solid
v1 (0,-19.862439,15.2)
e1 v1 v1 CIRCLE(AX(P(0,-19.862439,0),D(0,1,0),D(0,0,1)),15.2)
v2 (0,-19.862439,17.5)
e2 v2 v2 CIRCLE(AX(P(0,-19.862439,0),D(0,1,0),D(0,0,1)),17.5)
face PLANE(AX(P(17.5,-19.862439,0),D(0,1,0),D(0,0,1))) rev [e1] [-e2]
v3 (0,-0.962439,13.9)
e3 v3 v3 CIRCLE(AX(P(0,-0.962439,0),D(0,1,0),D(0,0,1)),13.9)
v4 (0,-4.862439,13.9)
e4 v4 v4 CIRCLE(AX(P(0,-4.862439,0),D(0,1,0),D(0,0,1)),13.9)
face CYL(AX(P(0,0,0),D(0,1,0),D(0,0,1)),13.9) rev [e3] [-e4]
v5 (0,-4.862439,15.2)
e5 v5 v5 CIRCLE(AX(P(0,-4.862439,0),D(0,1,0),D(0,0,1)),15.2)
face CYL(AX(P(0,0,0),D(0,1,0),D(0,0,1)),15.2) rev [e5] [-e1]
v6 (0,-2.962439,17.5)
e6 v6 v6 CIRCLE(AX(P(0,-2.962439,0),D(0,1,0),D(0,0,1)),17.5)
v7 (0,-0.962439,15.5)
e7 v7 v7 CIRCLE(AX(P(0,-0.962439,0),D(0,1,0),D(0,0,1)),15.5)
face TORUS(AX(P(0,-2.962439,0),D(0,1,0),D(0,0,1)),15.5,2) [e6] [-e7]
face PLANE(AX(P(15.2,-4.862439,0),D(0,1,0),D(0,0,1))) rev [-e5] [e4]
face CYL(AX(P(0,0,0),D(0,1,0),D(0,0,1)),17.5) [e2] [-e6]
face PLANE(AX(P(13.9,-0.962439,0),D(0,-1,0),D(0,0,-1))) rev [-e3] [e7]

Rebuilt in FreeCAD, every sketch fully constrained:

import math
import FreeCAD as App
import Part
import Sketcher

doc = App.newDocument("Part")
params = doc.addObject("Spreadsheet::Sheet", "Params")
for row, (alias, value) in enumerate([
    ("sketch1_radius", "2 mm"),
    ("sketch1_height", "15 mm"),
    ("sketch1_width", "2.3 mm"),
    ("sketch1_width2", "1.6 mm"),
    ("sketch1_height2", "16.9 mm"),
    ("revolution_angle", "360 deg"),
], start=1):
    params.set(f"A{row}", alias)
    params.set(f"B{row}", "=" + value)
    params.setAlias(f"B{row}", alias)

body = doc.addObject("PartDesign::Body", "Body")

# Sketch on XY plane
sketch1 = body.newObject("Sketcher::SketchObject", "Sketch")
sketch1.AttachmentSupport = (doc.getObject("XY_Plane"), [""])
sketch1.MapMode = "FlatFace"
sketch1.addGeometry([
    Part.LineSegment(App.Vector(15.2, -4.862439, 0), App.Vector(15.2, -19.862439, 0)),  # 0
    Part.LineSegment(App.Vector(15.2, -19.862439, 0), App.Vector(17.5, -19.862439, 0)),  # 1
    Part.LineSegment(App.Vector(17.5, -19.862439, 0), App.Vector(17.5, -2.962439, 0)),  # 2
    Part.ArcOfCircle(Part.Circle(App.Vector(15.5, -2.962439, 0), App.Vector(0, 0, 1), 2), math.radians(0), math.radians(90)),  # 3
    Part.LineSegment(App.Vector(15.5, -0.962439, 0), App.Vector(13.9, -0.962439, 0)),  # 4
    Part.LineSegment(App.Vector(13.9, -0.962439, 0), App.Vector(13.9, -4.862439, 0)),  # 5
    Part.LineSegment(App.Vector(13.9, -4.862439, 0), App.Vector(15.2, -4.862439, 0)),  # 6
], False)
sketch1.addConstraint([
    Sketcher.Constraint("Coincident", 0, 2, 1, 1),
    Sketcher.Constraint("Coincident", 1, 2, 2, 1),
    Sketcher.Constraint("Tangent", 2, 2, 3, 1),
    Sketcher.Constraint("Tangent", 3, 2, 4, 1),
    Sketcher.Constraint("Coincident", 4, 2, 5, 1),
    Sketcher.Constraint("Coincident", 5, 2, 6, 1),
    Sketcher.Constraint("Coincident", 6, 2, 0, 1),
    Sketcher.Constraint("Vertical", 0),
    Sketcher.Constraint("Horizontal", 1),
    Sketcher.Constraint("Vertical", 2),
    Sketcher.Constraint("Horizontal", 4),
    Sketcher.Constraint("Vertical", 5),
    Sketcher.Constraint("Horizontal", 6),
    Sketcher.Constraint("Radius", 3, 2.0),
    Sketcher.Constraint("DistanceY", 0, 2, 0, 1, 15.0),
    Sketcher.Constraint("DistanceX", 1, 1, 1, 2, 2.3),
    Sketcher.Constraint("DistanceX", 4, 2, 4, 1, 1.6),
    Sketcher.Constraint("DistanceY", 2, 1, 2, 2, 16.9),
    Sketcher.Constraint("DistanceX", -1, 1, 3, 3, 15.5),
    Sketcher.Constraint("DistanceY", 3, 3, -1, 1, 2.962439),
])
sketch1.setExpression("Constraints[13]", "Params.sketch1_radius")
sketch1.setExpression("Constraints[14]", "Params.sketch1_height")
sketch1.setExpression("Constraints[15]", "Params.sketch1_width")
sketch1.setExpression("Constraints[16]", "Params.sketch1_width2")
sketch1.setExpression("Constraints[17]", "Params.sketch1_height2")
revolution = body.newObject("PartDesign::Revolution", "Revolution")
revolution.Profile = sketch1
revolution.ReferenceAxis = (sketch1, ["V_Axis"])
revolution.setExpression("Angle", "Params.revolution_angle")

doc.recompute()
